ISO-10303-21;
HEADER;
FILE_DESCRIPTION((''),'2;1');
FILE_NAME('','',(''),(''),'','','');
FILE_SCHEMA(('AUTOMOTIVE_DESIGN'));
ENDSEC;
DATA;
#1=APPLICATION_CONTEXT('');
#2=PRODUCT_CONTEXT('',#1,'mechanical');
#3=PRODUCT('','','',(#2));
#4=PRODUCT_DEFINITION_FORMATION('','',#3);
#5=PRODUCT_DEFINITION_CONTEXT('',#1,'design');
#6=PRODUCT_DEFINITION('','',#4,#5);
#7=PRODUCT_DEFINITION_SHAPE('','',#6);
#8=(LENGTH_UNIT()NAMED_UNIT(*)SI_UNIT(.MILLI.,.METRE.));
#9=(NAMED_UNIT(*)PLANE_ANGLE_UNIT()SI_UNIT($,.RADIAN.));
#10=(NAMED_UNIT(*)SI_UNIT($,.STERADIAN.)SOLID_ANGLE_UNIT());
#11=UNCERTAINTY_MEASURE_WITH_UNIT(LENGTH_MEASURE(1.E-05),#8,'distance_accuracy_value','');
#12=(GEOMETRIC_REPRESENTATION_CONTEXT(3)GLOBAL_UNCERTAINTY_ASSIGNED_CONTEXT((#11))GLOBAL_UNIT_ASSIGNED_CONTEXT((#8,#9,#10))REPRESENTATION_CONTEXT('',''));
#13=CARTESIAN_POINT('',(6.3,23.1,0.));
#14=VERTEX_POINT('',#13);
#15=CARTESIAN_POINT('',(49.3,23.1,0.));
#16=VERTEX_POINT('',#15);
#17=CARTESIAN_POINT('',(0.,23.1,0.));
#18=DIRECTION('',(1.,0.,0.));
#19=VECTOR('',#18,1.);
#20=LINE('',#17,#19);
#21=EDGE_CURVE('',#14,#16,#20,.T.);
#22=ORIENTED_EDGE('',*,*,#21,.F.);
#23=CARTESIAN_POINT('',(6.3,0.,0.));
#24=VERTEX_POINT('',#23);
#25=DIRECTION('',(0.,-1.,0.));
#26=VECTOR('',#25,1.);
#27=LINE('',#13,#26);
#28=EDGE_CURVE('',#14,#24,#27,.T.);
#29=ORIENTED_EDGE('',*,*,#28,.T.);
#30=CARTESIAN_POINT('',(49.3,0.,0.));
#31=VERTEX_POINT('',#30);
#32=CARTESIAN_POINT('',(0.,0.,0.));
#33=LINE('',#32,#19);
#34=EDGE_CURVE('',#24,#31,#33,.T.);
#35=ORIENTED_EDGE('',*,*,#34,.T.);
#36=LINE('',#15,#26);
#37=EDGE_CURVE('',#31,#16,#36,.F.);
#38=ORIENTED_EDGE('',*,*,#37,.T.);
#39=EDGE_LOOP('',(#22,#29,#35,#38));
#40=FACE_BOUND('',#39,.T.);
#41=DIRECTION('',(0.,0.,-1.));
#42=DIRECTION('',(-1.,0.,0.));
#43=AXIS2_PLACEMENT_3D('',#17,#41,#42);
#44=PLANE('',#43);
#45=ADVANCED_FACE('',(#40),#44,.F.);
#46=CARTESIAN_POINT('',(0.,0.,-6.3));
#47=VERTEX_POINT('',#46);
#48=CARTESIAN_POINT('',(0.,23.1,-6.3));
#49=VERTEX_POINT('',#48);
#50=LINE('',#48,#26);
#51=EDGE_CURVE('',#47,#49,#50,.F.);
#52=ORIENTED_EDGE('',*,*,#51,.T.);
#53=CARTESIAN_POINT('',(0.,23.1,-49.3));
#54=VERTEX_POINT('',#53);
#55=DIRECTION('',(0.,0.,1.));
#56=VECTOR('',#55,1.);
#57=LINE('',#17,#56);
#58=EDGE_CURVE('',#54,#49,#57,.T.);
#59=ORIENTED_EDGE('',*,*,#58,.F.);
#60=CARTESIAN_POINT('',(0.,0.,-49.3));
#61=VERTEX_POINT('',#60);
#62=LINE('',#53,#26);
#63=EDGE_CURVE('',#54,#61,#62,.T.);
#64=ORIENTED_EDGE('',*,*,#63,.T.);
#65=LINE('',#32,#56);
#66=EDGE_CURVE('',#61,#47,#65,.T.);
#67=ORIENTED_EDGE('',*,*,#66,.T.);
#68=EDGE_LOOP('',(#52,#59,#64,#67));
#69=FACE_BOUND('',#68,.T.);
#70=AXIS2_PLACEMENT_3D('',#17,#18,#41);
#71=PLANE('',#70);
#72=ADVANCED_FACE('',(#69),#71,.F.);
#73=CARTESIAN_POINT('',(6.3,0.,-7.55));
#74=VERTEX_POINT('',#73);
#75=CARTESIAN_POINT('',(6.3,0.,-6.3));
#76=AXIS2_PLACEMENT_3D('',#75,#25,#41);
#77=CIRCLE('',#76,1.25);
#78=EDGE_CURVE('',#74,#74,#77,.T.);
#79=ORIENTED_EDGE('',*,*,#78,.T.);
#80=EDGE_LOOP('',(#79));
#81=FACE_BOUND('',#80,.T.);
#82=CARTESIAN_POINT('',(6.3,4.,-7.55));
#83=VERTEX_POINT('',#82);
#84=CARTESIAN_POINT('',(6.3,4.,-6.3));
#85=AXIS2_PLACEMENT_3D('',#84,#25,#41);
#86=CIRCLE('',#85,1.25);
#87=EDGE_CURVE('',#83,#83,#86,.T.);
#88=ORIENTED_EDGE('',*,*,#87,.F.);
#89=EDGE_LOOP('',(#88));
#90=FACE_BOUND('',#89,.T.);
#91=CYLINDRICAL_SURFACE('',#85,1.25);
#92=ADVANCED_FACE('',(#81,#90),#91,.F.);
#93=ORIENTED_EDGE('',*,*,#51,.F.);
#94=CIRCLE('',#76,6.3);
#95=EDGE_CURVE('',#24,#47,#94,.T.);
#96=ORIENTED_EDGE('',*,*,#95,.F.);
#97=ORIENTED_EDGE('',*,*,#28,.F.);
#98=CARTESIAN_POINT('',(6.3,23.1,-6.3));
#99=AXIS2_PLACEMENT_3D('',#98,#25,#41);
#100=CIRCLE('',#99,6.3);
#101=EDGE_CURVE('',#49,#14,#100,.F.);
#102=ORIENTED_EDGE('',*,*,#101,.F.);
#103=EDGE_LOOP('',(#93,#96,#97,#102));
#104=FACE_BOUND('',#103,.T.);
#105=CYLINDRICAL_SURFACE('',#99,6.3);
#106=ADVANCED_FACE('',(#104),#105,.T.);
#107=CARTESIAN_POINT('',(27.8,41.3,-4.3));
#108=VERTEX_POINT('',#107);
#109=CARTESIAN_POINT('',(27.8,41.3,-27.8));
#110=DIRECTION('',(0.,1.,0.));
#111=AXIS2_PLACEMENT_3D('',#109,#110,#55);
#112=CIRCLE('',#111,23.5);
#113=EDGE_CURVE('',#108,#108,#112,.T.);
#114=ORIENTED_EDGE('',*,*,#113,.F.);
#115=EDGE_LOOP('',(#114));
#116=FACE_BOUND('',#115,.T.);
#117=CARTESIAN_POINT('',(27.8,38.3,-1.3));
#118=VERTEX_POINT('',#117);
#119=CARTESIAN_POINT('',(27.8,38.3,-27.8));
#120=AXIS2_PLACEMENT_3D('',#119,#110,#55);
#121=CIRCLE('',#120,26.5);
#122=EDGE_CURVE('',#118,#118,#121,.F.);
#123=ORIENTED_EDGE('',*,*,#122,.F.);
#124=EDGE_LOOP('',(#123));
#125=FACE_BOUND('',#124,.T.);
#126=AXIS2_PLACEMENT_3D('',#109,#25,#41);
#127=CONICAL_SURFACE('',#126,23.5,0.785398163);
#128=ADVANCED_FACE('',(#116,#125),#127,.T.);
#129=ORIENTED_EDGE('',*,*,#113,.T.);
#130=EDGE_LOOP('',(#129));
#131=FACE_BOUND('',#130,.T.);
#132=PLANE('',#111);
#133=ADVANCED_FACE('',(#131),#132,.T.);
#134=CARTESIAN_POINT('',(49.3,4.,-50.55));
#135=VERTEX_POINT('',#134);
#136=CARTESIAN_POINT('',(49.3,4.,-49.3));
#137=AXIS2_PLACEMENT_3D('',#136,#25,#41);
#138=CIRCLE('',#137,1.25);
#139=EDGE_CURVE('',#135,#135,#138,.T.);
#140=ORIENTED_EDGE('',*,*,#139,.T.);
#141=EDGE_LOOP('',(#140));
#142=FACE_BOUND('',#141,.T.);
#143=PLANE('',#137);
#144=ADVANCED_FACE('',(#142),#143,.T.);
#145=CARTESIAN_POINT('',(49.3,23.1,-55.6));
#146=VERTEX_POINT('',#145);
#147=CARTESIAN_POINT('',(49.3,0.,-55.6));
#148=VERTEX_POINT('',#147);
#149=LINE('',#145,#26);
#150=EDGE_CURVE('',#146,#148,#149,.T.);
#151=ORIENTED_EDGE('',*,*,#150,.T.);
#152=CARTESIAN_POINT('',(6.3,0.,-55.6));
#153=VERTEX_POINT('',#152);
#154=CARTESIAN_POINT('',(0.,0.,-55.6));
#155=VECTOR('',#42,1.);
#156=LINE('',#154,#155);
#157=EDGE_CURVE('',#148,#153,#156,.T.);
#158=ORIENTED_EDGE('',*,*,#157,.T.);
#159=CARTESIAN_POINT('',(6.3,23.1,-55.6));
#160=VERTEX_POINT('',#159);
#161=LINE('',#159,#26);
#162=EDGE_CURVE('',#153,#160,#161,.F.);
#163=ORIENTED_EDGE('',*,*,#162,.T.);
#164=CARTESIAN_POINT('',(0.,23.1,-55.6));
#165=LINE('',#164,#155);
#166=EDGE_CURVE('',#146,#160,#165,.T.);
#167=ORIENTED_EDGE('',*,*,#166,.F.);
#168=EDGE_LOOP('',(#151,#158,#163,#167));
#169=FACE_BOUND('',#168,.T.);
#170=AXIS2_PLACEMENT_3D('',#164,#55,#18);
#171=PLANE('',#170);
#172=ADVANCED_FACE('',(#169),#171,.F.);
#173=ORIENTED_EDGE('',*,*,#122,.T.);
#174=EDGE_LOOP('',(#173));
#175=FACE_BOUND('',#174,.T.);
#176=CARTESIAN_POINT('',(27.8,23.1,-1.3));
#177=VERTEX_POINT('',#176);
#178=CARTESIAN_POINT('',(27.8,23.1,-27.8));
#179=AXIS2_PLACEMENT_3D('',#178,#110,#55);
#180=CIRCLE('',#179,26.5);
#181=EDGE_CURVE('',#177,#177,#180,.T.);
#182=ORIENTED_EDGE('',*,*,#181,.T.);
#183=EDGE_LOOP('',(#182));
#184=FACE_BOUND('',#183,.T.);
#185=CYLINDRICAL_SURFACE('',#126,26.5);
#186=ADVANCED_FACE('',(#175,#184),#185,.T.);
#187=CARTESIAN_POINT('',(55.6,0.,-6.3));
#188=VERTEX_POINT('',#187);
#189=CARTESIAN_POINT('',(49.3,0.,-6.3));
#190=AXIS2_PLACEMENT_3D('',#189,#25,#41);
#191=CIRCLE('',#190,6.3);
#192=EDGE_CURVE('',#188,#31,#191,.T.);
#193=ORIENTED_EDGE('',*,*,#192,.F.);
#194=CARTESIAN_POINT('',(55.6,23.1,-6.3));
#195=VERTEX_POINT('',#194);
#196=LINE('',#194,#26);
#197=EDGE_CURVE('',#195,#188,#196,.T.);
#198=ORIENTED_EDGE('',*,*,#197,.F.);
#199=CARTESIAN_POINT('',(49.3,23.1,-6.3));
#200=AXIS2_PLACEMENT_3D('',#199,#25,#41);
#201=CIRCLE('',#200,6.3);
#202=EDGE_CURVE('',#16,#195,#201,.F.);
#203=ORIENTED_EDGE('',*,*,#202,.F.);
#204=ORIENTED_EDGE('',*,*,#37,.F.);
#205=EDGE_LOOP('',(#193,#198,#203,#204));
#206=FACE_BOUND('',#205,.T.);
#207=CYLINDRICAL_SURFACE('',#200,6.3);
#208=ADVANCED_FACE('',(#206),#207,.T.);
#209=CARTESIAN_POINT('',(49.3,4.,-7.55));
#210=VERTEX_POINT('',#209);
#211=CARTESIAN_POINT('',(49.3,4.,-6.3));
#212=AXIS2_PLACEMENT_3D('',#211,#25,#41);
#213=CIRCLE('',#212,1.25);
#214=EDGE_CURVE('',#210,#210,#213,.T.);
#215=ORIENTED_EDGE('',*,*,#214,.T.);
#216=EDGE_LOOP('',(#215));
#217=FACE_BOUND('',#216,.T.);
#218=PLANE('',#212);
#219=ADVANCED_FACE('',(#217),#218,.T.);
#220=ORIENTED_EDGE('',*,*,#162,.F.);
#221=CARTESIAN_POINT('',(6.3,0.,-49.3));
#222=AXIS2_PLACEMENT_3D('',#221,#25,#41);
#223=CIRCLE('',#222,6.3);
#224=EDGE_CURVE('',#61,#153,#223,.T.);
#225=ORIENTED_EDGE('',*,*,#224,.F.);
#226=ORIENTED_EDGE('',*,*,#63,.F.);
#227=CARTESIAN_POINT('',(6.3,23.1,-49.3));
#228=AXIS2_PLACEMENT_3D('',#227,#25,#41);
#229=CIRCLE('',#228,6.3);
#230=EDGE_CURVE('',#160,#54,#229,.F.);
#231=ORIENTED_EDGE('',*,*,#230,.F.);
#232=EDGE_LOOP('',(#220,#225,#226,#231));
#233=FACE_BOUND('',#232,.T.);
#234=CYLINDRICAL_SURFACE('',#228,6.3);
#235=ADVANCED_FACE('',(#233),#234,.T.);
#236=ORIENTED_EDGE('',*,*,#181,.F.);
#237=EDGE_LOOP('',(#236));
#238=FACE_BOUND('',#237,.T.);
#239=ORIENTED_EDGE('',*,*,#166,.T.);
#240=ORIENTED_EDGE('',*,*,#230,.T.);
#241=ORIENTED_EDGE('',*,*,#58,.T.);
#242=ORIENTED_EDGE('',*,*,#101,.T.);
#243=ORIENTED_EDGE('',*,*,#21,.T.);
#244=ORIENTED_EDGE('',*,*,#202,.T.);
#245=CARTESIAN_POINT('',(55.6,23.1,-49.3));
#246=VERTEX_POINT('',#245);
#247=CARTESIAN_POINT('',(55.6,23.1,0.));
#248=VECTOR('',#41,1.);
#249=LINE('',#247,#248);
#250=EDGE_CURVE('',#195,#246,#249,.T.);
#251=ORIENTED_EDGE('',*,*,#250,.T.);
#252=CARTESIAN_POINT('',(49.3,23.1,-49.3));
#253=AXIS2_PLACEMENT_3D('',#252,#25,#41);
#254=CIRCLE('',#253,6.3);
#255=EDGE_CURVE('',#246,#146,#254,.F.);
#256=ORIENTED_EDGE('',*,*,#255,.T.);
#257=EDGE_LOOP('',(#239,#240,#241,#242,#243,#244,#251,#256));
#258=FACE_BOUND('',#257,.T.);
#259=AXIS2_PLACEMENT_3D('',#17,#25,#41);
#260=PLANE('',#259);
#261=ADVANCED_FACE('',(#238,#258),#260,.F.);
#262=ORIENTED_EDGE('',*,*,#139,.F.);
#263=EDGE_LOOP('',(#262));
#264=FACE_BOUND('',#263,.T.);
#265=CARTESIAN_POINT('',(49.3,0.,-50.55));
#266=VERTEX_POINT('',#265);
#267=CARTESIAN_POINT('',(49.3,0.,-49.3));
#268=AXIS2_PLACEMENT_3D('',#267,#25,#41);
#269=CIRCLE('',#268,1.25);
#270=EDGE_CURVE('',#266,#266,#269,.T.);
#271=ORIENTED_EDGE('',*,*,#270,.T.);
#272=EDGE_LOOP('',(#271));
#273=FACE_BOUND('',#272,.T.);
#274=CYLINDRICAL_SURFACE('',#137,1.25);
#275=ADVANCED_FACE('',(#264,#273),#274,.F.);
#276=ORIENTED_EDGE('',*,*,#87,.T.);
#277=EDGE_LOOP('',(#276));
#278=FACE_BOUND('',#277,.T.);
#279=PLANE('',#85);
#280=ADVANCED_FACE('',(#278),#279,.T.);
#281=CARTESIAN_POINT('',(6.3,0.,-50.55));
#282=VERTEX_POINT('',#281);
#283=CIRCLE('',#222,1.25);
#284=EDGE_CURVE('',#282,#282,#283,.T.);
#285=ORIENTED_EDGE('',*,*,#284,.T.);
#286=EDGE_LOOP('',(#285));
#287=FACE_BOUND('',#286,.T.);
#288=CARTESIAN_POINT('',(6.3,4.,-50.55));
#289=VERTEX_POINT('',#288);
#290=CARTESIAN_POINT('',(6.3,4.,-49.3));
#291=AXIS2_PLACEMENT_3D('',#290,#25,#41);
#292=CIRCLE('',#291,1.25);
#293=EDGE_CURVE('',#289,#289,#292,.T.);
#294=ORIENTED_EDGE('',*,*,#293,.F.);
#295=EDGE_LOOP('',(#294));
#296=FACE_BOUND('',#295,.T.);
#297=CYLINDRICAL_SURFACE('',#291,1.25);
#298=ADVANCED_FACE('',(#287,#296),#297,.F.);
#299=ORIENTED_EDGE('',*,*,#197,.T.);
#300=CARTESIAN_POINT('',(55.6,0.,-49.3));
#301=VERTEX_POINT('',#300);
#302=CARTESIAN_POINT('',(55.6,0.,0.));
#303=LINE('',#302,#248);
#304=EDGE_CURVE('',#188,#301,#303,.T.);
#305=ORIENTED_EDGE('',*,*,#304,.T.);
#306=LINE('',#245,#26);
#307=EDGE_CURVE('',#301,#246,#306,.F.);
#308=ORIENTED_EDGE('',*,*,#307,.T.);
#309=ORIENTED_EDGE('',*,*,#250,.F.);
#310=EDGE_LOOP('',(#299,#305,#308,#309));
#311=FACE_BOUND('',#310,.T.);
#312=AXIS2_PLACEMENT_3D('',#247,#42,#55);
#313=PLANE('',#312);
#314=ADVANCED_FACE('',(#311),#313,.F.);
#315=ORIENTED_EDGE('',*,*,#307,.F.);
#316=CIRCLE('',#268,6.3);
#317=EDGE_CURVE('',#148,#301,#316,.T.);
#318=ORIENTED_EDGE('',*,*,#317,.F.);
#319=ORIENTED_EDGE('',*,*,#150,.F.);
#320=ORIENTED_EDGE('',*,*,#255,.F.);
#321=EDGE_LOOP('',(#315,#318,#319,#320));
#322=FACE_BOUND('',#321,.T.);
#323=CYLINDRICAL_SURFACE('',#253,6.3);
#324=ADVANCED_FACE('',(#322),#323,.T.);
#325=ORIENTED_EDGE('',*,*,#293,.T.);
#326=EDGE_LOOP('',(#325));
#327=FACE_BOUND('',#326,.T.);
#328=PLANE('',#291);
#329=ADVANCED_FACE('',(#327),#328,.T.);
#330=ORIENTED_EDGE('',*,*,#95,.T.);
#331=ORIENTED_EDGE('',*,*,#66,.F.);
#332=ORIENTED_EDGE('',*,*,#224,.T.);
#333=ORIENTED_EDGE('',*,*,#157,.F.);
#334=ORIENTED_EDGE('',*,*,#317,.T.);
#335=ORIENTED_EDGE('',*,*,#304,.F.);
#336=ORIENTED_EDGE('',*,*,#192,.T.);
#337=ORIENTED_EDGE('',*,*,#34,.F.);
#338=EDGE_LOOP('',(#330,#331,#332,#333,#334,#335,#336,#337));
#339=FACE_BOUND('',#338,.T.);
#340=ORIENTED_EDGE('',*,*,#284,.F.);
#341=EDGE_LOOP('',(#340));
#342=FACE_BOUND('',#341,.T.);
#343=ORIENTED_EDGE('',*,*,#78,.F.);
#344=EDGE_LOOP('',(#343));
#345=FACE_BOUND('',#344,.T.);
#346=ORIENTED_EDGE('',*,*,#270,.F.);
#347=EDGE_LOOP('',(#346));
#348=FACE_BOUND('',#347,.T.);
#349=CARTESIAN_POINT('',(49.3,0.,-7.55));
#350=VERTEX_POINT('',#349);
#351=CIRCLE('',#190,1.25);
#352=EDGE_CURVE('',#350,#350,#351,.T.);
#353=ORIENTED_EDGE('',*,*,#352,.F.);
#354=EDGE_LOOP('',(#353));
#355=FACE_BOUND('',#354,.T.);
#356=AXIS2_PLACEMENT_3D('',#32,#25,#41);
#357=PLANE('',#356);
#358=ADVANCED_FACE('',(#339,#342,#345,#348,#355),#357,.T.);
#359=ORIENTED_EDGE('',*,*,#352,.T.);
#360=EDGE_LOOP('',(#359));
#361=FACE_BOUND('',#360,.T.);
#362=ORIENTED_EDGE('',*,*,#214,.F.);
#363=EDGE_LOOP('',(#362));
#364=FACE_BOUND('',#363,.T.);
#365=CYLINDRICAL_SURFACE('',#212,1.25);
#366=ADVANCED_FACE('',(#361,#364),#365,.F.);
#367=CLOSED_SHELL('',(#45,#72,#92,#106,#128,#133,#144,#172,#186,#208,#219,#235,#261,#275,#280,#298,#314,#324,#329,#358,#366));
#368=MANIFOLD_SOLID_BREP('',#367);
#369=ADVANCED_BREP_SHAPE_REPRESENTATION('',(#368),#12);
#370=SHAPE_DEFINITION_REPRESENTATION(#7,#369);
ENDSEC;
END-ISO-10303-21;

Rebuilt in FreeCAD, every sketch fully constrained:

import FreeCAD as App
import Part
import Sketcher

V = App.Vector
Q = App.Units.Quantity


def edges_at(feature, points):
    """Names of the edges that pass closest to the given points."""
    edges = feature.Shape.Edges
    near = lambda p: min(range(len(edges)), key=lambda i: edges[i].distToShape(Part.Vertex(*p))[0])
    return sorted({f"Edge{near(p) + 1}" for p in points})


def add_polygon(sketch, points):
    """Adds a closed chain of lines whose ends are joined by coincident constraints."""
    first, n = sketch.GeometryCount, len(points)
    for a, b in zip(points, points[1:] + points[:1]):
        sketch.addGeometry(Part.LineSegment(App.Vector(*a, 0), App.Vector(*b, 0)), False)
    for i in range(n):
        sketch.addConstraint(Sketcher.Constraint("Coincident", first + i, 2, first + (i + 1) % n, 1))

doc = App.newDocument("Part")
body = doc.addObject("PartDesign::Body", "Body")

# Sketch on XZ plane
sketch1 = body.newObject("Sketcher::SketchObject", "Sketch")
sketch1.AttachmentSupport = (doc.getObject("XZ_Plane"), [""])
sketch1.MapMode = "FlatFace"
add_polygon(sketch1, [(0, -55.6), (0, 0), (55.6, 0), (55.6, -55.6)])  # lines 0-3
sketch1.addConstraint([
    Sketcher.Constraint("Vertical", 0),
    Sketcher.Constraint("Horizontal", 1),
    Sketcher.Constraint("Vertical", 2),
    Sketcher.Constraint("Horizontal", 3),
    Sketcher.Constraint("Coincident", 0, 2, -1, 1),
    Sketcher.Constraint("Equal", 3, 0),
    Sketcher.Constraint("DistanceX", 1, 1, 1, 2, Q("55.6 mm")),
])
pad1 = body.newObject("PartDesign::Pad", "Pad")
pad1.Profile = sketch1
pad1.Length = 23.1
pad1.Reversed = True
doc.recompute()

fillet = body.newObject("PartDesign::Fillet", "Fillet")
fillet.Base = (pad1, edges_at(pad1, [
    (0, 11.55, -55.6),
    (55.6, 11.55, -55.6),
    (55.6, 11.55, 0),
    (0, 11.55, 0),
]))
fillet.Radius = 6.3

# Sketch on XZ plane
sketch2 = body.newObject("Sketcher::SketchObject", "Sketch001")
sketch2.AttachmentSupport = (doc.getObject("XZ_Plane"), [""])
sketch2.MapMode = "FlatFace"
sketch2.addGeometry([
    Part.Circle(V(6.3, -6.3, 0), V(0, 0, 1), 1.25),
    Part.Circle(V(49.3, -6.3, 0), V(0, 0, 1), 1.25),
    Part.Circle(V(49.3, -49.3, 0), V(0, 0, 1), 1.25),
    Part.Circle(V(6.3, -49.3, 0), V(0, 0, 1), 1.25),
], False)
sketch2.addConstraint([
    Sketcher.Constraint("Equal", 0, 1),
    Sketcher.Constraint("Equal", 1, 2),
    Sketcher.Constraint("Equal", 2, 3),
    Sketcher.Constraint("Horizontal", 0, 3, 1, 3),
    Sketcher.Constraint("Horizontal", 2, 3, 3, 3),
    Sketcher.Constraint("Vertical", 1, 3, 2, 3),
    Sketcher.Constraint("Vertical", 0, 3, 3, 3),
    Sketcher.Constraint("Diameter", 0, Q("2.5 mm")),
    Sketcher.Constraint("DistanceX", 0, 3, 1, 3, Q("43 mm")),
    Sketcher.Constraint("DistanceY", 2, 3, 1, 3, Q("43 mm")),
    Sketcher.Constraint("DistanceX", -1, 1, 0, 3, Q("6.3 mm")),
    Sketcher.Constraint("DistanceY", 0, 3, -1, 1, Q("6.3 mm")),
])
pocket1 = body.newObject("PartDesign::Pocket", "Pocket")
pocket1.Profile = sketch2
pocket1.Length = 4

# Sketch on XZ plane
sketch3 = body.newObject("Sketcher::SketchObject", "Sketch002")
sketch3.AttachmentSupport = (doc.getObject("XZ_Plane"), [""])
sketch3.MapMode = "FlatFace"
sketch3.AttachmentOffset = App.Placement(V(0, 0, -23.1), App.Rotation())
sketch3.addGeometry(Part.Circle(V(27.8, -27.8, 0), V(0, 0, 1), 26.5), False)
sketch3.addConstraint([
    Sketcher.Constraint("Diameter", 0, Q("53 mm")),
    Sketcher.Constraint("DistanceX", -1, 1, 0, 3, Q("27.8 mm")),
    Sketcher.Constraint("DistanceY", 0, 3, -1, 1, Q("27.8 mm")),
])
pad2 = body.newObject("PartDesign::Pad", "Pad001")
pad2.Profile = sketch3
pad2.Length = 18.2
pad2.Reversed = True
doc.recompute()

chamfer = body.newObject("PartDesign::Chamfer", "Chamfer")
chamfer.Base = (pad2, edges_at(pad2, [(27.8, 41.3, -54.3)]))
chamfer.Size = 3

doc.recompute()
